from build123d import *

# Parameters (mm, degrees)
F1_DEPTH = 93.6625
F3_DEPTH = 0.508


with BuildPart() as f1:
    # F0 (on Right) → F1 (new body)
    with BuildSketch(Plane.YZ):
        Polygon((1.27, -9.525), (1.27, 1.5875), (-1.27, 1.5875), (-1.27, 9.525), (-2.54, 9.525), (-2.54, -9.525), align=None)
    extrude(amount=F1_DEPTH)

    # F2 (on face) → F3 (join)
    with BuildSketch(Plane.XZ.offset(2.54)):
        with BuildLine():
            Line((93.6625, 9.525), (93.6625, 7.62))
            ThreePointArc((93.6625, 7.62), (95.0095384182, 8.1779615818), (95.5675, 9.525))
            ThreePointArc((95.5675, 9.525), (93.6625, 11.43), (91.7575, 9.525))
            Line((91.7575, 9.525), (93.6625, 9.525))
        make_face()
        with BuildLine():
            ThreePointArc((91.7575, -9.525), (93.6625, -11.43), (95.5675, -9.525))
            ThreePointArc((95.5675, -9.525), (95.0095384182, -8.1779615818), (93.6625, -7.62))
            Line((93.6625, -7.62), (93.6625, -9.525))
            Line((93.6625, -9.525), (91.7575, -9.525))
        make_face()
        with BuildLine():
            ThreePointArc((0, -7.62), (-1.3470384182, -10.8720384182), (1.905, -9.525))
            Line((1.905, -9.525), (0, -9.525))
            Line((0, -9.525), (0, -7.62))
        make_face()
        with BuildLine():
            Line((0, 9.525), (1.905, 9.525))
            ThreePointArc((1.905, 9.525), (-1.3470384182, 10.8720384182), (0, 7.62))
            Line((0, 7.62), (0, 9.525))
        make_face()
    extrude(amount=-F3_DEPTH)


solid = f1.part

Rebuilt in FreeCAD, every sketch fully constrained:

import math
import FreeCAD as App
import Part
import Sketcher
Q = App.Units.Quantity

doc = App.newDocument("Part")
body = doc.addObject("PartDesign::Body", "Body")

# Sketch on YZ plane
sketch1 = body.newObject("Sketcher::SketchObject", "Sketch")
sketch1.AttachmentSupport = (doc.getObject("YZ_Plane"), [""])
sketch1.MapMode = "FlatFace"
sketch1.addGeometry([
    Part.LineSegment(App.Vector(1.3, -9.5, 0), App.Vector(1.3, 1.6, 0)),  # 0
    Part.LineSegment(App.Vector(1.3, 1.6, 0), App.Vector(-1.3, 1.6, 0)),  # 1
    Part.LineSegment(App.Vector(-1.3, 1.6, 0), App.Vector(-1.3, 9.5, 0)),  # 2
    Part.LineSegment(App.Vector(-1.3, 9.5, 0), App.Vector(-2.5, 9.5, 0)),  # 3
    Part.LineSegment(App.Vector(-2.5, 9.5, 0), App.Vector(-2.5, -9.5, 0)),  # 4
    Part.LineSegment(App.Vector(-2.5, -9.5, 0), App.Vector(1.3, -9.5, 0)),  # 5
], False)
sketch1.addConstraint([
    Sketcher.Constraint("Coincident", 0, 2, 1, 1),
    Sketcher.Constraint("Coincident", 1, 2, 2, 1),
    Sketcher.Constraint("Coincident", 2, 2, 3, 1),
    Sketcher.Constraint("Coincident", 3, 2, 4, 1),
    Sketcher.Constraint("Coincident", 4, 2, 5, 1),
    Sketcher.Constraint("Coincident", 5, 2, 0, 1),
    Sketcher.Constraint("Vertical", 0),
    Sketcher.Constraint("Horizontal", 1),
    Sketcher.Constraint("Vertical", 2),
    Sketcher.Constraint("Horizontal", 3),
    Sketcher.Constraint("Vertical", 4),
    Sketcher.Constraint("Horizontal", 5),
    Sketcher.Constraint("Symmetric", 2, 2, 5, 2, -1, 1),
    Sketcher.Constraint("DistanceX", 1, 2, 1, 1, Q("0.1 in")),
    Sketcher.Constraint("DistanceX", 3, 2, 3, 1, Q("0.05 in")),
    Sketcher.Constraint("DistanceY", 4, 2, 4, 1, Q("0.75 in")),
    Sketcher.Constraint("DistanceY", 0, 1, 0, 2, Q("0.4375 in")),
])
pad1 = body.newObject("PartDesign::Pad", "Pad")
pad1.Profile = sketch1
pad1.Length = Q("3.6875 in")

# Sketch on XZ plane
sketch2 = body.newObject("Sketcher::SketchObject", "Sketch001")
sketch2.AttachmentSupport = (doc.getObject("XZ_Plane"), [""])
sketch2.MapMode = "FlatFace"
sketch2.AttachmentOffset = App.Placement(App.Vector(0, 0, 0.1 * 25.4), App.Rotation())
sketch2.addGeometry([
    Part.LineSegment(App.Vector(93.7, 9.5, 0), App.Vector(93.7, 7.6, 0)),  # 0
    Part.ArcOfCircle(Part.Circle(App.Vector(93.7, 9.5, 0), App.Vector(0, 0, 1), 1.9), math.radians(-90), math.radians(0)),  # 1
    Part.ArcOfCircle(Part.Circle(App.Vector(93.7, 9.5, 0), App.Vector(0, 0, 1), 1.9), math.radians(0), math.radians(180)),  # 2
    Part.LineSegment(App.Vector(91.8, 9.5, 0), App.Vector(93.7, 9.5, 0)),  # 3
    Part.ArcOfCircle(Part.Circle(App.Vector(93.7, -9.5, 0), App.Vector(0, 0, 1), 1.9), math.radians(180), math.radians(360)),  # 4
    Part.ArcOfCircle(Part.Circle(App.Vector(93.7, -9.5, 0), App.Vector(0, 0, 1), 1.9), math.radians(0), math.radians(90)),  # 5
    Part.LineSegment(App.Vector(93.7, -7.6, 0), App.Vector(93.7, -9.5, 0)),  # 6
    Part.LineSegment(App.Vector(93.7, -9.5, 0), App.Vector(91.8, -9.5, 0)),  # 7
    Part.ArcOfCircle(Part.Circle(App.Vector(0, -9.5, 0), App.Vector(0, 0, 1), 1.9), math.radians(90), math.radians(360)),  # 8
    Part.LineSegment(App.Vector(1.9, -9.5, 0), App.Vector(0, -9.5, 0)),  # 9
    Part.LineSegment(App.Vector(0, -9.5, 0), App.Vector(0, -7.6, 0)),  # 10
    Part.LineSegment(App.Vector(0, 9.5, 0), App.Vector(1.9, 9.5, 0)),  # 11
    Part.ArcOfCircle(Part.Circle(App.Vector(0, 9.5, 0), App.Vector(0, 0, 1), 1.9), math.radians(0), math.radians(270)),  # 12
    Part.LineSegment(App.Vector(0, 7.6, 0), App.Vector(0, 9.5, 0)),  # 13
], False)
sketch2.addConstraint([
    Sketcher.Constraint("Coincident", 0, 2, 1, 1),
    Sketcher.Constraint("Tangent", 1, 2, 2, 1),
    Sketcher.Constraint("Coincident", 2, 2, 3, 1),
    Sketcher.Constraint("Coincident", 3, 2, 0, 1),
    Sketcher.Constraint("Tangent", 4, 2, 5, 1),
    Sketcher.Constraint("Coincident", 5, 2, 6, 1),
    Sketcher.Constraint("Coincident", 6, 2, 7, 1),
    Sketcher.Constraint("Coincident", 7, 2, 4, 1),
    Sketcher.Constraint("Coincident", 8, 2, 9, 1),
    Sketcher.Constraint("Coincident", 9, 2, 10, 1),
    Sketcher.Constraint("Coincident", 10, 2, 8, 1),
    Sketcher.Constraint("Coincident", 11, 2, 12, 1),
    Sketcher.Constraint("Coincident", 12, 2, 13, 1),
    Sketcher.Constraint("Coincident", 13, 2, 11, 1),
    Sketcher.Constraint("Vertical", 0),
    Sketcher.Constraint("Horizontal", 3),
    Sketcher.Constraint("Vertical", 6),
    Sketcher.Constraint("Horizontal", 7),
    Sketcher.Constraint("Horizontal", 9),
    Sketcher.Constraint("Vertical", 10),
    Sketcher.Constraint("Horizontal", 11),
    Sketcher.Constraint("Vertical", 13),
    Sketcher.Constraint("Coincident", 3, 2, 1, 3),
    Sketcher.Constraint("Coincident", 6, 2, 4, 3),
    Sketcher.Constraint("Coincident", 9, 2, 8, 3),
    Sketcher.Constraint("Coincident", 13, 2, 12, 3),
    Sketcher.Constraint("Equal", 1, 2),
    Sketcher.Constraint("Equal", 2, 4),
    Sketcher.Constraint("Equal", 4, 5),
    Sketcher.Constraint("Equal", 5, 8),
    Sketcher.Constraint("Equal", 8, 12),
    Sketcher.Constraint("Symmetric", 8, 3, 12, 3, -1, 1),
    Sketcher.Constraint("Symmetric", 1, 3, 4, 3, -1),
    Sketcher.Constraint("PointOnObject", 8, 3, -2),
    Sketcher.Constraint("Horizontal", 5, 3, 8, 3),
    Sketcher.Constraint("Horizontal", 12, 3, 1, 2),
    Sketcher.Constraint("Horizontal", 8, 3, 4, 2),
    Sketcher.Constraint("Radius", 1, Q("0.075 in")),
    Sketcher.Constraint("DistanceY", -1, 1, 0, 2, Q("0.3 in")),
    Sketcher.Constraint("DistanceX", -1, 1, 1, 3, Q("3.6875 in")),
])
pad2 = body.newObject("PartDesign::Pad", "Pad001")
pad2.Profile = sketch2
pad2.Length = Q("0.02 in")
pad2.Reversed = True

doc.recompute()
